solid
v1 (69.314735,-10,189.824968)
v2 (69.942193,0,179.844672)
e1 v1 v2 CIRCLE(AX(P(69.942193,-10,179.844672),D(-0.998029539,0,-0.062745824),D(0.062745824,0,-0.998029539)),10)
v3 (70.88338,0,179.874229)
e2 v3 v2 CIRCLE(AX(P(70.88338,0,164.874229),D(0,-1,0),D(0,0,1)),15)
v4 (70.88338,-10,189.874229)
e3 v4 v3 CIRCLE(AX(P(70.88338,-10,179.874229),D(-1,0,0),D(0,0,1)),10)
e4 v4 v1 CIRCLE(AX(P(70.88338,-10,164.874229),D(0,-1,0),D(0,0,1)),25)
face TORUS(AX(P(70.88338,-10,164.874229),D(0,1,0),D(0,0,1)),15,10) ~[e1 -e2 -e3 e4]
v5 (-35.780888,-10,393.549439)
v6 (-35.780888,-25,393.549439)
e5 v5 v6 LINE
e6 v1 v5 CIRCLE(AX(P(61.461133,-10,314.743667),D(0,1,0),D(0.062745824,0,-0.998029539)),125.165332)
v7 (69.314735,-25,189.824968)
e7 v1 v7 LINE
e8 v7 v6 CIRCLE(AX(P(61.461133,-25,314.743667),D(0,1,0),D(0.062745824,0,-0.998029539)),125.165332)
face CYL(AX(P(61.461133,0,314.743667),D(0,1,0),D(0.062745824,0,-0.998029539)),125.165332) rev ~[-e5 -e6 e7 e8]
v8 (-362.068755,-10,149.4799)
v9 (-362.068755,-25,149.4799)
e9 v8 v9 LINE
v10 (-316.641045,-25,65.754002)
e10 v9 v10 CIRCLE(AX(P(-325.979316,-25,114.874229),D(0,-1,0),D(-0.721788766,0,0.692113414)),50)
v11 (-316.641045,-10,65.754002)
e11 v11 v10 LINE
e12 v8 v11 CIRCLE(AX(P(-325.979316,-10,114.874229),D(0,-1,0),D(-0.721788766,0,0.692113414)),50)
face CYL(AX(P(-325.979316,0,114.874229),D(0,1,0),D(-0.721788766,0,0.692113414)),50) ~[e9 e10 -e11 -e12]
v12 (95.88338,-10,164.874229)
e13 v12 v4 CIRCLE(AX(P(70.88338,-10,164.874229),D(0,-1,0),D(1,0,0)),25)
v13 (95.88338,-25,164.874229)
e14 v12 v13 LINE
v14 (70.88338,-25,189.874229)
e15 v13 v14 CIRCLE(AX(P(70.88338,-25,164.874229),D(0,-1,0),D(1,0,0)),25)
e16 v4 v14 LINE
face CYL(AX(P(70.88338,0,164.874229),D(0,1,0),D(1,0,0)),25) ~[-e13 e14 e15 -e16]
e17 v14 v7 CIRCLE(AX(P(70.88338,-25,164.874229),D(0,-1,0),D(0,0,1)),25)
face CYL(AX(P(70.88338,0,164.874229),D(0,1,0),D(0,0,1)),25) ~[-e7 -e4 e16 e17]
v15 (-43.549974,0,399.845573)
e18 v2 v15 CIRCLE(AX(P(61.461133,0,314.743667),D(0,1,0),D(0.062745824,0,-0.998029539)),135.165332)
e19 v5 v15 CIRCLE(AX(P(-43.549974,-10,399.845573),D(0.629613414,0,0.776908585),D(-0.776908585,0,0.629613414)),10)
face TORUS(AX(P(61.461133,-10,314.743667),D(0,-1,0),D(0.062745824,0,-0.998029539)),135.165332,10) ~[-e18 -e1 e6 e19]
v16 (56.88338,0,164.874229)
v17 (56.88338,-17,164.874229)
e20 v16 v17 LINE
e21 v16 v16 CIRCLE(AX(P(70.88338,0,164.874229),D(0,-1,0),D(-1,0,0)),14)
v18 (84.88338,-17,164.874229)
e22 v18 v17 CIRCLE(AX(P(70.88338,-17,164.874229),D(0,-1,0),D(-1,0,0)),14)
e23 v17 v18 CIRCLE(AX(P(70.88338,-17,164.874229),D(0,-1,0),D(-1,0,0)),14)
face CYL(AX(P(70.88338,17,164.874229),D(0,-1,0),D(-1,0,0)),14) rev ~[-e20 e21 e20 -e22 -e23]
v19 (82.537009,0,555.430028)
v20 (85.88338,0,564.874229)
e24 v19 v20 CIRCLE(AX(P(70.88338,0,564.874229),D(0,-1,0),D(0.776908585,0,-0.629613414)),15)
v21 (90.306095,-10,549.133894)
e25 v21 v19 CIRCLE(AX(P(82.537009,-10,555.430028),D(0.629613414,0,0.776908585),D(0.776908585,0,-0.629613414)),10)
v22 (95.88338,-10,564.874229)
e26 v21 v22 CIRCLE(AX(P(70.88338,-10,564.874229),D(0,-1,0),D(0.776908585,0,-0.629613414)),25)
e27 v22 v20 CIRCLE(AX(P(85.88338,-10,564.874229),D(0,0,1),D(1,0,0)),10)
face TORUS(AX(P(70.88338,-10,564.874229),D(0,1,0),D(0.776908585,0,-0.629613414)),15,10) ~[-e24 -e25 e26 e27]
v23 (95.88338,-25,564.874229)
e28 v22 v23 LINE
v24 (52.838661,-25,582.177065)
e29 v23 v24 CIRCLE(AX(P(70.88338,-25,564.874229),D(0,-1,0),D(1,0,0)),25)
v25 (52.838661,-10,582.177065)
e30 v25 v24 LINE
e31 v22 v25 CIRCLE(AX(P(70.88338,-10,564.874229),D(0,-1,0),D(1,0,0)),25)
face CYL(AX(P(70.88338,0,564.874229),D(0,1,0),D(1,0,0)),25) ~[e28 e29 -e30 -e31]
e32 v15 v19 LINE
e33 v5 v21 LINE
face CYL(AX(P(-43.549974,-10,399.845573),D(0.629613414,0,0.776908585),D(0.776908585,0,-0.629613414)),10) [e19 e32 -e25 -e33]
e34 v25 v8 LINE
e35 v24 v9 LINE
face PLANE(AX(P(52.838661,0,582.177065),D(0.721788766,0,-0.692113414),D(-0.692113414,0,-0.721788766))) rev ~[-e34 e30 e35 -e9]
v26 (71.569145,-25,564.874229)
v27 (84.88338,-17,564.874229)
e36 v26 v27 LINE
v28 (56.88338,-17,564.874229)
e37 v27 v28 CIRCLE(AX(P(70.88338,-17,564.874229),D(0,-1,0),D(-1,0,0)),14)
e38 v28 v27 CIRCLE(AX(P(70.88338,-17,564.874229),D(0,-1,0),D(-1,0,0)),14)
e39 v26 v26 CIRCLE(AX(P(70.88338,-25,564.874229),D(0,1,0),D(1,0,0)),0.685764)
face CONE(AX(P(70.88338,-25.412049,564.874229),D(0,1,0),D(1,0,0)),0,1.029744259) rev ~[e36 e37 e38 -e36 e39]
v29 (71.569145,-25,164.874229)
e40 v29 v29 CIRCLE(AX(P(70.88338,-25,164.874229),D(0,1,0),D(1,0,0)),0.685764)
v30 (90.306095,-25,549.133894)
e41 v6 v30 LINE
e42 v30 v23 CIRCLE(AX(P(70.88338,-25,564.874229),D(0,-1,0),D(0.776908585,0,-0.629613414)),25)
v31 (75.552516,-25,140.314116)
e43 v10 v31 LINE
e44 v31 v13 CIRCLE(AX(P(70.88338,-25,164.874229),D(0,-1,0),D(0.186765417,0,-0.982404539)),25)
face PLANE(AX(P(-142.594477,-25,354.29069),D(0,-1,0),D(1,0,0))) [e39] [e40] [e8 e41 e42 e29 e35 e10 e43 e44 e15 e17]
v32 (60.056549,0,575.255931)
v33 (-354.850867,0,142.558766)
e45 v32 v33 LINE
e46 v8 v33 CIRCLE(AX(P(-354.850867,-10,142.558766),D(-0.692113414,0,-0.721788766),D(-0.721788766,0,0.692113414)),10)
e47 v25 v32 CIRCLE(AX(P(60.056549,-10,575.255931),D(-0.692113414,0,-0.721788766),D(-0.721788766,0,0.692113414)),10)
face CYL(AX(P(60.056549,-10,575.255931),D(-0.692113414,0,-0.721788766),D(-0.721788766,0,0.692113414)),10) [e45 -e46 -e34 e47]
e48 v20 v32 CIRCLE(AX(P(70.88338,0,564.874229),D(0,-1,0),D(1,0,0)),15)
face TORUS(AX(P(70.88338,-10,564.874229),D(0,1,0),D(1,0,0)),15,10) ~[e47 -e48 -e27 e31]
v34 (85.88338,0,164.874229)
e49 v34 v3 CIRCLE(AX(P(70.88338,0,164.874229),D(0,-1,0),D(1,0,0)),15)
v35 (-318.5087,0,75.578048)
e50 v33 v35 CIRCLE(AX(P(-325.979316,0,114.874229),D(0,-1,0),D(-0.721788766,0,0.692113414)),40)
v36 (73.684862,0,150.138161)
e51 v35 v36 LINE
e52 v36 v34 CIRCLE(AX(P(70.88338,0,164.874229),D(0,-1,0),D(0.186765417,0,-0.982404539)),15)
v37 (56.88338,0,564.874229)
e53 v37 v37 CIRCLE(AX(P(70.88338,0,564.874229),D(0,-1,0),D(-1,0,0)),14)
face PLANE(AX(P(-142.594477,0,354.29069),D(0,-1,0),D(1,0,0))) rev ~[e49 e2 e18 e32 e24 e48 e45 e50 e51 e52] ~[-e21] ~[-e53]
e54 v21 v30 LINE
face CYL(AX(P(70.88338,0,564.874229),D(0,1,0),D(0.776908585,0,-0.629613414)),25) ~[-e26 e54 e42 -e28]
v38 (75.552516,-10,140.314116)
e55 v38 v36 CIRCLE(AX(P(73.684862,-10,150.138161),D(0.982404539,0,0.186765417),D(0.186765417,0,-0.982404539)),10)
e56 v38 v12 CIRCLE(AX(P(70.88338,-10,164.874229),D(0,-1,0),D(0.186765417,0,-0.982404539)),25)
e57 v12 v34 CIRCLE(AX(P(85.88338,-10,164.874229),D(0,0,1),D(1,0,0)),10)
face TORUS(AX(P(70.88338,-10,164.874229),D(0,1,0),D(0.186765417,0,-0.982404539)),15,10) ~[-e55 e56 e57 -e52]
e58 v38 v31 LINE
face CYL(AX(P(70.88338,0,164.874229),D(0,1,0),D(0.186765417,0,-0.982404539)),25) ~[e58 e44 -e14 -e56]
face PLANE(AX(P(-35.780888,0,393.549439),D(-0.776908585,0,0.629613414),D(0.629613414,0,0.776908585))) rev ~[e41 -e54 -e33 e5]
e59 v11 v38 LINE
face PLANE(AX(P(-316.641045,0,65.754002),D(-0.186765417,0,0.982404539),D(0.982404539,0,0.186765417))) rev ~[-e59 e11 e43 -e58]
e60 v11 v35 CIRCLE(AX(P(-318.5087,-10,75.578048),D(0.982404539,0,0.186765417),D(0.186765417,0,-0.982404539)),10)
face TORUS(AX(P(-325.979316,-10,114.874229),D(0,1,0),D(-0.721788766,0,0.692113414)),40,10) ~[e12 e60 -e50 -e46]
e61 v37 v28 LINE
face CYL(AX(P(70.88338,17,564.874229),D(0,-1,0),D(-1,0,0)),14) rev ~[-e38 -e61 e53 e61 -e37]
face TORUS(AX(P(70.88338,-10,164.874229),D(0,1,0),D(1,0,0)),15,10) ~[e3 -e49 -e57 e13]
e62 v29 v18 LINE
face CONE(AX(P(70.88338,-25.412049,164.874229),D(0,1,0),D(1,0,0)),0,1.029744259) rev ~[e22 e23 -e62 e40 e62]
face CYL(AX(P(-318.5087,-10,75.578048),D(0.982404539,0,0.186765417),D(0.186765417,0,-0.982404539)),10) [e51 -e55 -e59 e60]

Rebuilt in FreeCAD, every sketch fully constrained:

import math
import FreeCAD as App
import Part
import Sketcher
from FreeCAD import Vector
Q = App.Units.Quantity


def edges_at(feature, points):
    """Names of the edges that pass closest to the given points."""
    edges = feature.Shape.Edges
    near = lambda p: min(range(len(edges)), key=lambda i: edges[i].distToShape(Part.Vertex(*p))[0])
    return sorted({f"Edge{near(p) + 1}" for p in points})

doc = App.newDocument("Part")
body = doc.addObject("PartDesign::Body", "Body")

sketch1 = body.newObject("Sketcher::SketchObject", "Sketch")
sketch1.AttachmentSupport = (doc.getObject("XZ_Plane"), [""])
sketch1.MapMode = "FlatFace"
sketch1.addGeometry([
    Part.ArcOfCircle(Part.Circle(Vector(61.5, 314.7, 0), Vector(0, 0, 1), 125.2), math.radians(141), math.radians(274)),
    Part.LineSegment(Vector(-35.8, 393.5, 0), Vector(90.3, 549.1, 0)),
    Part.ArcOfCircle(Part.Circle(Vector(70.9, 564.9, 0), Vector(0, 0, 1), 25), math.radians(-39), math.radians(0)),
    Part.ArcOfCircle(Part.Circle(Vector(70.9, 564.9, 0), Vector(0, 0, 1), 25), math.radians(0), math.radians(136)),
    Part.LineSegment(Vector(52.8, 582.2, 0), Vector(-362.1, 149.5, 0)),
    Part.ArcOfCircle(Part.Circle(Vector(-326, 114.9, 0), Vector(0, 0, 1), 50), math.radians(136), math.radians(281)),
    Part.LineSegment(Vector(-316.6, 65.8, 0), Vector(75.6, 140.3, 0)),
    Part.ArcOfCircle(Part.Circle(Vector(70.9, 164.9, 0), Vector(0, 0, 1), 25), math.radians(-79), math.radians(0)),
    Part.ArcOfCircle(Part.Circle(Vector(70.9, 164.9, 0), Vector(0, 0, 1), 25), math.radians(0), math.radians(90)),
    Part.ArcOfCircle(Part.Circle(Vector(70.9, 164.9, 0), Vector(0, 0, 1), 25), math.radians(90), math.radians(93.6)),
], False)
sketch1.addConstraint([
    Sketcher.Constraint("Tangent", 0, 1, 1, 1),
    Sketcher.Constraint("Tangent", 1, 2, 2, 1),
    Sketcher.Constraint("Tangent", 2, 2, 3, 1),
    Sketcher.Constraint("Tangent", 3, 2, 4, 1),
    Sketcher.Constraint("Tangent", 4, 2, 5, 1),
    Sketcher.Constraint("Tangent", 5, 2, 6, 1),
    Sketcher.Constraint("Tangent", 6, 2, 7, 1),
    Sketcher.Constraint("Tangent", 7, 2, 8, 1),
    Sketcher.Constraint("Tangent", 8, 2, 9, 1),
    Sketcher.Constraint("Tangent", 9, 2, 0, 2),
    Sketcher.Constraint("Coincident", 9, 3, 7, 3),
    Sketcher.Constraint("Equal", 2, 3),
    Sketcher.Constraint("Equal", 3, 7),
    Sketcher.Constraint("Horizontal", 3, 3, 2, 2),
    Sketcher.Constraint("Horizontal", 9, 3, 7, 2),
    Sketcher.Constraint("Vertical", 3, 3, 7, 3),
    Sketcher.Constraint("Vertical", 9, 3, 8, 2),
    Sketcher.Constraint("Radius", 2, Q("25 mm")),
    Sketcher.Constraint("Radius", 5, Q("50 mm")),
    Sketcher.Constraint("DistanceY", 5, 3, 3, 3, Q("450 mm")),
    Sketcher.Constraint("DistanceY", 7, 3, 2, 3, Q("400 mm")),
    Sketcher.Constraint("Radius", 0, Q("125.165332 mm")),
    Sketcher.Constraint("DistanceY", -1, 1, 4, 2, Q("149.4799 mm")),
    Sketcher.Constraint("Distance", 4, Q("599.47894 mm")),
    Sketcher.Constraint("DistanceX", -1, 1, 2, 3, Q("70.88338 mm")),
    Sketcher.Constraint("DistanceX", 0, 1, -1, 1, Q("35.780888 mm")),
])
pad1 = body.newObject("PartDesign::Pad", "Pad")
pad1.Profile = sketch1
pad1.Length = 25

sketch2 = body.newObject("Sketcher::SketchObject", "Sketch001")
sketch2.AttachmentSupport = (doc.getObject("XZ_Plane"), [""])
sketch2.MapMode = "FlatFace"
sketch2.addGeometry(Part.Circle(Vector(71, 565, 0), Vector(0, 0, 1), 14), False)
sketch2.addConstraint([
    Sketcher.Constraint("Diameter", 0, Q("28 mm")),
    Sketcher.Constraint("DistanceX", -1, 1, 0, 3, Q("70.88338 mm")),
    Sketcher.Constraint("DistanceY", -1, 1, 0, 3, Q("564.874229 mm")),
])
doc.recompute()
hole = body.newObject("PartDesign::Hole", "Hole")
hole.Profile = sketch2
hole.ThreadType = "None"
hole.Diameter = 28
hole.DepthType = "Dimension"
hole.Depth = 17
hole.DrillPoint = "Angled"
hole.DrillPointAngle = 118
hole.Reversed = True

sketch3 = body.newObject("Sketcher::SketchObject", "Sketch002")
sketch3.AttachmentSupport = (doc.getObject("XZ_Plane"), [""])
sketch3.MapMode = "FlatFace"
sketch3.addGeometry(Part.Circle(Vector(71, 165, 0), Vector(0, 0, 1), 14), False)
sketch3.addConstraint([
    Sketcher.Constraint("Diameter", 0, Q("28 mm")),
    Sketcher.Constraint("DistanceX", -1, 1, 0, 3, Q("70.88338 mm")),
    Sketcher.Constraint("DistanceY", -1, 1, 0, 3, Q("164.874229 mm")),
])
doc.recompute()
hole2 = body.newObject("PartDesign::Hole", "Hole001")
hole2.Profile = sketch3
hole2.ThreadType = "None"
hole2.Diameter = 28
hole2.DepthType = "Dimension"
hole2.Depth = 17
hole2.DrillPoint = "Angled"
hole2.DrillPointAngle = 118
hole2.Reversed = True
doc.recompute()

fillet = body.newObject("PartDesign::Fillet", "Fillet")
fillet.Base = (hole2, edges_at(hole2, [(-49.775, 0, 257.36), (88.561, 0, 182.552)]))
fillet.Radius = 10

sketch4 = body.newObject("Sketcher::SketchObject", "Sketch003")
sketch4.AttachmentSupport = (doc.getObject("XZ_Plane"), [""])
sketch4.MapMode = "FlatFace"
sketch4.addGeometry([
    Part.ArcOfCircle(Part.Circle(Vector(-326, 114.9, 0), Vector(0, 0, 1), 30), math.radians(49), math.radians(360)),
    Part.ArcOfCircle(Part.Circle(Vector(-326, 114.9, 0), Vector(0, 0, 1), 30), math.radians(0), math.radians(7.18)),
    Part.ArcOfCircle(Part.Circle(Vector(-326, 114.9, 0), Vector(0, 0, 1), 30), math.radians(7), math.radians(49)),
], False)
sketch4.addConstraint([
    Sketcher.Constraint("Tangent", 0, 2, 1, 1),
    Sketcher.Constraint("Tangent", 1, 2, 2, 1),
    Sketcher.Constraint("Tangent", 2, 2, 0, 1),
    Sketcher.Constraint("Horizontal", 2, 3, 0, 2),
    Sketcher.Constraint("Radius", 0, Q("30 mm")),
    Sketcher.Constraint("DistanceY", 0, 2, 2, 2, Q("22.5 mm")),
    Sketcher.Constraint("DistanceY", 0, 2, 1, 2, Q("3.75 mm")),
    Sketcher.Constraint("DistanceY", -1, 1, 0, 3, Q("114.874229 mm")),
    Sketcher.Constraint("DistanceX", 2, 2, -1, 1, Q("306.136181 mm")),
])
pad2 = body.newObject("PartDesign::Pad", "Pad001")
pad2.Profile = sketch4
pad2.Length = 25

doc.recompute()
